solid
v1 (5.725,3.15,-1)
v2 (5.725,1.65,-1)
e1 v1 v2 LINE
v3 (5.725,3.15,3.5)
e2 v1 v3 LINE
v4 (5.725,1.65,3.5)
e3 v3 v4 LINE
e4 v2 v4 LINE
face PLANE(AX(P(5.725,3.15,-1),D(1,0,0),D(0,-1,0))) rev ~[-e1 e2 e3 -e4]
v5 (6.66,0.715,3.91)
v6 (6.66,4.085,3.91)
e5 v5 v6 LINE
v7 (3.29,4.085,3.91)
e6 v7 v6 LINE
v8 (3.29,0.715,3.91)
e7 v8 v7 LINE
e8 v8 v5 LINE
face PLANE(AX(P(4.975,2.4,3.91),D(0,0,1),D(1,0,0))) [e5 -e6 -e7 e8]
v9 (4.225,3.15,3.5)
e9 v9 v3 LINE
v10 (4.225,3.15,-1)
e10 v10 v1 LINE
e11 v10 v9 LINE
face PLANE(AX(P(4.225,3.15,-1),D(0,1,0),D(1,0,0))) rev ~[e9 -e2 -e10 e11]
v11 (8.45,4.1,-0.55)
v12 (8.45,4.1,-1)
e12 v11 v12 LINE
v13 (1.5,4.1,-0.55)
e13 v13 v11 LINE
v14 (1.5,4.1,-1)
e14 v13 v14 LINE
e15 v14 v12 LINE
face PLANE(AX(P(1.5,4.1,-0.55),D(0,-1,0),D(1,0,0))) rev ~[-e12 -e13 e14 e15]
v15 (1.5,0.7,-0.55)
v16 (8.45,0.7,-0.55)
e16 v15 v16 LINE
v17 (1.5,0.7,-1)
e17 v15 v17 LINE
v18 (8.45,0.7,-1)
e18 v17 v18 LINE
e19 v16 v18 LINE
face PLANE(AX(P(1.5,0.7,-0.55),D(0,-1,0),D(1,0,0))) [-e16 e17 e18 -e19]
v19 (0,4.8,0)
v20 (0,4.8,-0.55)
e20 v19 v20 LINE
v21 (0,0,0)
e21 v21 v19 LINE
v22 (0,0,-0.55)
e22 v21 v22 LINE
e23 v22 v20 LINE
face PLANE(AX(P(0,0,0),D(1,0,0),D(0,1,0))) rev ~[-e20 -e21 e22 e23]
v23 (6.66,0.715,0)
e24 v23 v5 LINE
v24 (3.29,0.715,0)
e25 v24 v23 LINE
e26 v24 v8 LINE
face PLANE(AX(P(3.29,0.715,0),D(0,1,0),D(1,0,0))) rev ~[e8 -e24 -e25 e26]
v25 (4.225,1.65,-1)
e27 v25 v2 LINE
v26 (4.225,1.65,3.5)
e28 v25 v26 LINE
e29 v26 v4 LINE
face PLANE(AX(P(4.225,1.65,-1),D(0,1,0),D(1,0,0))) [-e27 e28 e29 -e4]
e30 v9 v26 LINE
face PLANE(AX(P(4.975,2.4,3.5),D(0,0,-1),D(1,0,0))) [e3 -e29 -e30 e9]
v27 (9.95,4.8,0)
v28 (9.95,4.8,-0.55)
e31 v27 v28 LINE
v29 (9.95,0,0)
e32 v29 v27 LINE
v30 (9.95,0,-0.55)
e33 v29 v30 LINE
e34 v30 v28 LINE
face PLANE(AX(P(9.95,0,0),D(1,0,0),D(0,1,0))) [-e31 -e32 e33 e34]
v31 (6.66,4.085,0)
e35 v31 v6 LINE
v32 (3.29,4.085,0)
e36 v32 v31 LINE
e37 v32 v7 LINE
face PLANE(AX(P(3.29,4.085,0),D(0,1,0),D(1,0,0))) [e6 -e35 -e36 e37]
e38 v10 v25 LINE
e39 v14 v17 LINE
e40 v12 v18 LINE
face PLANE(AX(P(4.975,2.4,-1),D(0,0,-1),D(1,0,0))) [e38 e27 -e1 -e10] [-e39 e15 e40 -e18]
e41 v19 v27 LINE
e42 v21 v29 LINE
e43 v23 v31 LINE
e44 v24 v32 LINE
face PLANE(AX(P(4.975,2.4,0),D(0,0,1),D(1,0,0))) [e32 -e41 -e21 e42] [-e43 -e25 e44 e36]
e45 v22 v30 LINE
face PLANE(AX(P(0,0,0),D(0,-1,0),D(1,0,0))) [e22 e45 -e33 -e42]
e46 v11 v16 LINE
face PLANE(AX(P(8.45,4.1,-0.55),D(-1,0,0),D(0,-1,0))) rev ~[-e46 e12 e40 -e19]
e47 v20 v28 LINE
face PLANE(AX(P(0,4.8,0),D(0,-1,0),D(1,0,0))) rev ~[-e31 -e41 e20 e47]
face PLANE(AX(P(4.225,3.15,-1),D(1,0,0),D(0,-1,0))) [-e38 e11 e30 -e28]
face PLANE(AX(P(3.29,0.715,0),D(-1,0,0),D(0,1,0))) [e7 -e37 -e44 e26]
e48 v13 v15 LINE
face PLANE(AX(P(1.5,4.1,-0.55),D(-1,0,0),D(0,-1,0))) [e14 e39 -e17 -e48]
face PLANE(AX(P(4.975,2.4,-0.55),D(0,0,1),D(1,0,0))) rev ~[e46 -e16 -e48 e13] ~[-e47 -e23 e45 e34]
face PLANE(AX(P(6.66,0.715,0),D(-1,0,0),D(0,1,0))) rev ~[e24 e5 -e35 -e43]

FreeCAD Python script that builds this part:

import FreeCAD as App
import Part
import Sketcher

V = App.Vector


def add_polygon(sketch, points):
    """Adds a closed chain of lines whose ends are joined by coincident constraints."""
    first, n = sketch.GeometryCount, len(points)
    for a, b in zip(points, points[1:] + points[:1]):
        sketch.addGeometry(Part.LineSegment(App.Vector(*a, 0), App.Vector(*b, 0)), False)
    for i in range(n):
        sketch.addConstraint(Sketcher.Constraint("Coincident", first + i, 2, first + (i + 1) % n, 1))

doc = App.newDocument("Part")
body = doc.addObject("PartDesign::Body", "Body")

# Sketch on XY plane
sketch1 = body.newObject("Sketcher::SketchObject", "Sketch")
sketch1.AttachmentSupport = (doc.getObject("XY_Plane"), [""])
sketch1.MapMode = "FlatFace"
add_polygon(sketch1, [(0, 4.8), (0, 0), (9.9, 0), (9.9, 4.8)])  # lines 0-3
sketch1.addConstraint(Sketcher.Constraint("Vertical", 0))
sketch1.addConstraint(Sketcher.Constraint("Horizontal", 1))
sketch1.addConstraint(Sketcher.Constraint("Vertical", 2))
sketch1.addConstraint(Sketcher.Constraint("Horizontal", 3))
sketch1.addConstraint(Sketcher.Constraint("Coincident", 0, 2, -1, 1))
sketch1.addConstraint(Sketcher.Constraint("DistanceY", 0, 2, 0, 1, 4.8))
sketch1.addConstraint(Sketcher.Constraint("DistanceX", 1, 1, 1, 2, 9.95))
pad1 = body.newObject("PartDesign::Pad", "Pad")
pad1.Profile = sketch1
pad1.Length = 0.55
pad1.Reversed = True

# Sketch on XY plane
sketch2 = body.newObject("Sketcher::SketchObject", "Sketch001")
sketch2.AttachmentSupport = (doc.getObject("XY_Plane"), [""])
sketch2.MapMode = "FlatFace"
sketch2.AttachmentOffset = App.Placement(V(0, 0, -0.55), App.Rotation())
add_polygon(sketch2, [(1.5, 0.7), (1.5, 4.1), (8.4, 4.1), (8.4, 0.7)])  # lines 0-3
sketch2.addConstraint(Sketcher.Constraint("Vertical", 0))
sketch2.addConstraint(Sketcher.Constraint("Horizontal", 1))
sketch2.addConstraint(Sketcher.Constraint("Vertical", 2))
sketch2.addConstraint(Sketcher.Constraint("Horizontal", 3))
sketch2.addConstraint(Sketcher.Constraint("DistanceY", 0, 1, 0, 2, 3.4))
sketch2.addConstraint(Sketcher.Constraint("DistanceX", 1, 1, 1, 2, 6.95))
sketch2.addConstraint(Sketcher.Constraint("DistanceX", -1, 1, 0, 2, 1.5))
sketch2.addConstraint(Sketcher.Constraint("DistanceY", -1, 1, 0, 2, 4.1))
pad2 = body.newObject("PartDesign::Pad", "Pad001")
pad2.Profile = sketch2
pad2.Length = 0.45
pad2.Reversed = True

# Sketch on XY plane
sketch3 = body.newObject("Sketcher::SketchObject", "Sketch002")
sketch3.AttachmentSupport = (doc.getObject("XY_Plane"), [""])
sketch3.MapMode = "FlatFace"
add_polygon(sketch3, [(3.3, 4.1), (3.3, 0.7), (6.7, 0.7), (6.7, 4.1)])  # lines 0-3
sketch3.addConstraint(Sketcher.Constraint("Vertical", 0))
sketch3.addConstraint(Sketcher.Constraint("Horizontal", 1))
sketch3.addConstraint(Sketcher.Constraint("Vertical", 2))
sketch3.addConstraint(Sketcher.Constraint("Horizontal", 3))
sketch3.addConstraint(Sketcher.Constraint("Equal", 3, 0))
sketch3.addConstraint(Sketcher.Constraint("DistanceX", 1, 1, 1, 2, 3.37))
sketch3.addConstraint(Sketcher.Constraint("DistanceX", -1, 1, 0, 2, 3.29))
sketch3.addConstraint(Sketcher.Constraint("DistanceY", -1, 1, 0, 2, 0.715))
pad3 = body.newObject("PartDesign::Pad", "Pad002")
pad3.Profile = sketch3
pad3.Length = 3.91

# Sketch on XY plane
sketch4 = body.newObject("Sketcher::SketchObject", "Sketch003")
sketch4.AttachmentSupport = (doc.getObject("XY_Plane"), [""])
sketch4.MapMode = "FlatFace"
sketch4.AttachmentOffset = App.Placement(V(0, 0, -1), App.Rotation())
add_polygon(sketch4, [(4.2, 1.6), (4.2, 3.1), (5.7, 3.1), (5.7, 1.6)])  # lines 0-3
sketch4.addConstraint(Sketcher.Constraint("Vertical", 0))
sketch4.addConstraint(Sketcher.Constraint("Horizontal", 1))
sketch4.addConstraint(Sketcher.Constraint("Vertical", 2))
sketch4.addConstraint(Sketcher.Constraint("Horizontal", 3))
sketch4.addConstraint(Sketcher.Constraint("Equal", 3, 0))
sketch4.addConstraint(Sketcher.Constraint("DistanceX", 1, 1, 1, 2, 1.5))
sketch4.addConstraint(Sketcher.Constraint("DistanceY", -1, 1, 0, 2, 3.15))
sketch4.addConstraint(Sketcher.Constraint("DistanceX", -1, 1, 0, 2, 4.225))
pocket1 = body.newObject("PartDesign::Pocket", "Pocket")
pocket1.Profile = sketch4
pocket1.Length = 4.5
pocket1.Reversed = True

doc.recompute()
